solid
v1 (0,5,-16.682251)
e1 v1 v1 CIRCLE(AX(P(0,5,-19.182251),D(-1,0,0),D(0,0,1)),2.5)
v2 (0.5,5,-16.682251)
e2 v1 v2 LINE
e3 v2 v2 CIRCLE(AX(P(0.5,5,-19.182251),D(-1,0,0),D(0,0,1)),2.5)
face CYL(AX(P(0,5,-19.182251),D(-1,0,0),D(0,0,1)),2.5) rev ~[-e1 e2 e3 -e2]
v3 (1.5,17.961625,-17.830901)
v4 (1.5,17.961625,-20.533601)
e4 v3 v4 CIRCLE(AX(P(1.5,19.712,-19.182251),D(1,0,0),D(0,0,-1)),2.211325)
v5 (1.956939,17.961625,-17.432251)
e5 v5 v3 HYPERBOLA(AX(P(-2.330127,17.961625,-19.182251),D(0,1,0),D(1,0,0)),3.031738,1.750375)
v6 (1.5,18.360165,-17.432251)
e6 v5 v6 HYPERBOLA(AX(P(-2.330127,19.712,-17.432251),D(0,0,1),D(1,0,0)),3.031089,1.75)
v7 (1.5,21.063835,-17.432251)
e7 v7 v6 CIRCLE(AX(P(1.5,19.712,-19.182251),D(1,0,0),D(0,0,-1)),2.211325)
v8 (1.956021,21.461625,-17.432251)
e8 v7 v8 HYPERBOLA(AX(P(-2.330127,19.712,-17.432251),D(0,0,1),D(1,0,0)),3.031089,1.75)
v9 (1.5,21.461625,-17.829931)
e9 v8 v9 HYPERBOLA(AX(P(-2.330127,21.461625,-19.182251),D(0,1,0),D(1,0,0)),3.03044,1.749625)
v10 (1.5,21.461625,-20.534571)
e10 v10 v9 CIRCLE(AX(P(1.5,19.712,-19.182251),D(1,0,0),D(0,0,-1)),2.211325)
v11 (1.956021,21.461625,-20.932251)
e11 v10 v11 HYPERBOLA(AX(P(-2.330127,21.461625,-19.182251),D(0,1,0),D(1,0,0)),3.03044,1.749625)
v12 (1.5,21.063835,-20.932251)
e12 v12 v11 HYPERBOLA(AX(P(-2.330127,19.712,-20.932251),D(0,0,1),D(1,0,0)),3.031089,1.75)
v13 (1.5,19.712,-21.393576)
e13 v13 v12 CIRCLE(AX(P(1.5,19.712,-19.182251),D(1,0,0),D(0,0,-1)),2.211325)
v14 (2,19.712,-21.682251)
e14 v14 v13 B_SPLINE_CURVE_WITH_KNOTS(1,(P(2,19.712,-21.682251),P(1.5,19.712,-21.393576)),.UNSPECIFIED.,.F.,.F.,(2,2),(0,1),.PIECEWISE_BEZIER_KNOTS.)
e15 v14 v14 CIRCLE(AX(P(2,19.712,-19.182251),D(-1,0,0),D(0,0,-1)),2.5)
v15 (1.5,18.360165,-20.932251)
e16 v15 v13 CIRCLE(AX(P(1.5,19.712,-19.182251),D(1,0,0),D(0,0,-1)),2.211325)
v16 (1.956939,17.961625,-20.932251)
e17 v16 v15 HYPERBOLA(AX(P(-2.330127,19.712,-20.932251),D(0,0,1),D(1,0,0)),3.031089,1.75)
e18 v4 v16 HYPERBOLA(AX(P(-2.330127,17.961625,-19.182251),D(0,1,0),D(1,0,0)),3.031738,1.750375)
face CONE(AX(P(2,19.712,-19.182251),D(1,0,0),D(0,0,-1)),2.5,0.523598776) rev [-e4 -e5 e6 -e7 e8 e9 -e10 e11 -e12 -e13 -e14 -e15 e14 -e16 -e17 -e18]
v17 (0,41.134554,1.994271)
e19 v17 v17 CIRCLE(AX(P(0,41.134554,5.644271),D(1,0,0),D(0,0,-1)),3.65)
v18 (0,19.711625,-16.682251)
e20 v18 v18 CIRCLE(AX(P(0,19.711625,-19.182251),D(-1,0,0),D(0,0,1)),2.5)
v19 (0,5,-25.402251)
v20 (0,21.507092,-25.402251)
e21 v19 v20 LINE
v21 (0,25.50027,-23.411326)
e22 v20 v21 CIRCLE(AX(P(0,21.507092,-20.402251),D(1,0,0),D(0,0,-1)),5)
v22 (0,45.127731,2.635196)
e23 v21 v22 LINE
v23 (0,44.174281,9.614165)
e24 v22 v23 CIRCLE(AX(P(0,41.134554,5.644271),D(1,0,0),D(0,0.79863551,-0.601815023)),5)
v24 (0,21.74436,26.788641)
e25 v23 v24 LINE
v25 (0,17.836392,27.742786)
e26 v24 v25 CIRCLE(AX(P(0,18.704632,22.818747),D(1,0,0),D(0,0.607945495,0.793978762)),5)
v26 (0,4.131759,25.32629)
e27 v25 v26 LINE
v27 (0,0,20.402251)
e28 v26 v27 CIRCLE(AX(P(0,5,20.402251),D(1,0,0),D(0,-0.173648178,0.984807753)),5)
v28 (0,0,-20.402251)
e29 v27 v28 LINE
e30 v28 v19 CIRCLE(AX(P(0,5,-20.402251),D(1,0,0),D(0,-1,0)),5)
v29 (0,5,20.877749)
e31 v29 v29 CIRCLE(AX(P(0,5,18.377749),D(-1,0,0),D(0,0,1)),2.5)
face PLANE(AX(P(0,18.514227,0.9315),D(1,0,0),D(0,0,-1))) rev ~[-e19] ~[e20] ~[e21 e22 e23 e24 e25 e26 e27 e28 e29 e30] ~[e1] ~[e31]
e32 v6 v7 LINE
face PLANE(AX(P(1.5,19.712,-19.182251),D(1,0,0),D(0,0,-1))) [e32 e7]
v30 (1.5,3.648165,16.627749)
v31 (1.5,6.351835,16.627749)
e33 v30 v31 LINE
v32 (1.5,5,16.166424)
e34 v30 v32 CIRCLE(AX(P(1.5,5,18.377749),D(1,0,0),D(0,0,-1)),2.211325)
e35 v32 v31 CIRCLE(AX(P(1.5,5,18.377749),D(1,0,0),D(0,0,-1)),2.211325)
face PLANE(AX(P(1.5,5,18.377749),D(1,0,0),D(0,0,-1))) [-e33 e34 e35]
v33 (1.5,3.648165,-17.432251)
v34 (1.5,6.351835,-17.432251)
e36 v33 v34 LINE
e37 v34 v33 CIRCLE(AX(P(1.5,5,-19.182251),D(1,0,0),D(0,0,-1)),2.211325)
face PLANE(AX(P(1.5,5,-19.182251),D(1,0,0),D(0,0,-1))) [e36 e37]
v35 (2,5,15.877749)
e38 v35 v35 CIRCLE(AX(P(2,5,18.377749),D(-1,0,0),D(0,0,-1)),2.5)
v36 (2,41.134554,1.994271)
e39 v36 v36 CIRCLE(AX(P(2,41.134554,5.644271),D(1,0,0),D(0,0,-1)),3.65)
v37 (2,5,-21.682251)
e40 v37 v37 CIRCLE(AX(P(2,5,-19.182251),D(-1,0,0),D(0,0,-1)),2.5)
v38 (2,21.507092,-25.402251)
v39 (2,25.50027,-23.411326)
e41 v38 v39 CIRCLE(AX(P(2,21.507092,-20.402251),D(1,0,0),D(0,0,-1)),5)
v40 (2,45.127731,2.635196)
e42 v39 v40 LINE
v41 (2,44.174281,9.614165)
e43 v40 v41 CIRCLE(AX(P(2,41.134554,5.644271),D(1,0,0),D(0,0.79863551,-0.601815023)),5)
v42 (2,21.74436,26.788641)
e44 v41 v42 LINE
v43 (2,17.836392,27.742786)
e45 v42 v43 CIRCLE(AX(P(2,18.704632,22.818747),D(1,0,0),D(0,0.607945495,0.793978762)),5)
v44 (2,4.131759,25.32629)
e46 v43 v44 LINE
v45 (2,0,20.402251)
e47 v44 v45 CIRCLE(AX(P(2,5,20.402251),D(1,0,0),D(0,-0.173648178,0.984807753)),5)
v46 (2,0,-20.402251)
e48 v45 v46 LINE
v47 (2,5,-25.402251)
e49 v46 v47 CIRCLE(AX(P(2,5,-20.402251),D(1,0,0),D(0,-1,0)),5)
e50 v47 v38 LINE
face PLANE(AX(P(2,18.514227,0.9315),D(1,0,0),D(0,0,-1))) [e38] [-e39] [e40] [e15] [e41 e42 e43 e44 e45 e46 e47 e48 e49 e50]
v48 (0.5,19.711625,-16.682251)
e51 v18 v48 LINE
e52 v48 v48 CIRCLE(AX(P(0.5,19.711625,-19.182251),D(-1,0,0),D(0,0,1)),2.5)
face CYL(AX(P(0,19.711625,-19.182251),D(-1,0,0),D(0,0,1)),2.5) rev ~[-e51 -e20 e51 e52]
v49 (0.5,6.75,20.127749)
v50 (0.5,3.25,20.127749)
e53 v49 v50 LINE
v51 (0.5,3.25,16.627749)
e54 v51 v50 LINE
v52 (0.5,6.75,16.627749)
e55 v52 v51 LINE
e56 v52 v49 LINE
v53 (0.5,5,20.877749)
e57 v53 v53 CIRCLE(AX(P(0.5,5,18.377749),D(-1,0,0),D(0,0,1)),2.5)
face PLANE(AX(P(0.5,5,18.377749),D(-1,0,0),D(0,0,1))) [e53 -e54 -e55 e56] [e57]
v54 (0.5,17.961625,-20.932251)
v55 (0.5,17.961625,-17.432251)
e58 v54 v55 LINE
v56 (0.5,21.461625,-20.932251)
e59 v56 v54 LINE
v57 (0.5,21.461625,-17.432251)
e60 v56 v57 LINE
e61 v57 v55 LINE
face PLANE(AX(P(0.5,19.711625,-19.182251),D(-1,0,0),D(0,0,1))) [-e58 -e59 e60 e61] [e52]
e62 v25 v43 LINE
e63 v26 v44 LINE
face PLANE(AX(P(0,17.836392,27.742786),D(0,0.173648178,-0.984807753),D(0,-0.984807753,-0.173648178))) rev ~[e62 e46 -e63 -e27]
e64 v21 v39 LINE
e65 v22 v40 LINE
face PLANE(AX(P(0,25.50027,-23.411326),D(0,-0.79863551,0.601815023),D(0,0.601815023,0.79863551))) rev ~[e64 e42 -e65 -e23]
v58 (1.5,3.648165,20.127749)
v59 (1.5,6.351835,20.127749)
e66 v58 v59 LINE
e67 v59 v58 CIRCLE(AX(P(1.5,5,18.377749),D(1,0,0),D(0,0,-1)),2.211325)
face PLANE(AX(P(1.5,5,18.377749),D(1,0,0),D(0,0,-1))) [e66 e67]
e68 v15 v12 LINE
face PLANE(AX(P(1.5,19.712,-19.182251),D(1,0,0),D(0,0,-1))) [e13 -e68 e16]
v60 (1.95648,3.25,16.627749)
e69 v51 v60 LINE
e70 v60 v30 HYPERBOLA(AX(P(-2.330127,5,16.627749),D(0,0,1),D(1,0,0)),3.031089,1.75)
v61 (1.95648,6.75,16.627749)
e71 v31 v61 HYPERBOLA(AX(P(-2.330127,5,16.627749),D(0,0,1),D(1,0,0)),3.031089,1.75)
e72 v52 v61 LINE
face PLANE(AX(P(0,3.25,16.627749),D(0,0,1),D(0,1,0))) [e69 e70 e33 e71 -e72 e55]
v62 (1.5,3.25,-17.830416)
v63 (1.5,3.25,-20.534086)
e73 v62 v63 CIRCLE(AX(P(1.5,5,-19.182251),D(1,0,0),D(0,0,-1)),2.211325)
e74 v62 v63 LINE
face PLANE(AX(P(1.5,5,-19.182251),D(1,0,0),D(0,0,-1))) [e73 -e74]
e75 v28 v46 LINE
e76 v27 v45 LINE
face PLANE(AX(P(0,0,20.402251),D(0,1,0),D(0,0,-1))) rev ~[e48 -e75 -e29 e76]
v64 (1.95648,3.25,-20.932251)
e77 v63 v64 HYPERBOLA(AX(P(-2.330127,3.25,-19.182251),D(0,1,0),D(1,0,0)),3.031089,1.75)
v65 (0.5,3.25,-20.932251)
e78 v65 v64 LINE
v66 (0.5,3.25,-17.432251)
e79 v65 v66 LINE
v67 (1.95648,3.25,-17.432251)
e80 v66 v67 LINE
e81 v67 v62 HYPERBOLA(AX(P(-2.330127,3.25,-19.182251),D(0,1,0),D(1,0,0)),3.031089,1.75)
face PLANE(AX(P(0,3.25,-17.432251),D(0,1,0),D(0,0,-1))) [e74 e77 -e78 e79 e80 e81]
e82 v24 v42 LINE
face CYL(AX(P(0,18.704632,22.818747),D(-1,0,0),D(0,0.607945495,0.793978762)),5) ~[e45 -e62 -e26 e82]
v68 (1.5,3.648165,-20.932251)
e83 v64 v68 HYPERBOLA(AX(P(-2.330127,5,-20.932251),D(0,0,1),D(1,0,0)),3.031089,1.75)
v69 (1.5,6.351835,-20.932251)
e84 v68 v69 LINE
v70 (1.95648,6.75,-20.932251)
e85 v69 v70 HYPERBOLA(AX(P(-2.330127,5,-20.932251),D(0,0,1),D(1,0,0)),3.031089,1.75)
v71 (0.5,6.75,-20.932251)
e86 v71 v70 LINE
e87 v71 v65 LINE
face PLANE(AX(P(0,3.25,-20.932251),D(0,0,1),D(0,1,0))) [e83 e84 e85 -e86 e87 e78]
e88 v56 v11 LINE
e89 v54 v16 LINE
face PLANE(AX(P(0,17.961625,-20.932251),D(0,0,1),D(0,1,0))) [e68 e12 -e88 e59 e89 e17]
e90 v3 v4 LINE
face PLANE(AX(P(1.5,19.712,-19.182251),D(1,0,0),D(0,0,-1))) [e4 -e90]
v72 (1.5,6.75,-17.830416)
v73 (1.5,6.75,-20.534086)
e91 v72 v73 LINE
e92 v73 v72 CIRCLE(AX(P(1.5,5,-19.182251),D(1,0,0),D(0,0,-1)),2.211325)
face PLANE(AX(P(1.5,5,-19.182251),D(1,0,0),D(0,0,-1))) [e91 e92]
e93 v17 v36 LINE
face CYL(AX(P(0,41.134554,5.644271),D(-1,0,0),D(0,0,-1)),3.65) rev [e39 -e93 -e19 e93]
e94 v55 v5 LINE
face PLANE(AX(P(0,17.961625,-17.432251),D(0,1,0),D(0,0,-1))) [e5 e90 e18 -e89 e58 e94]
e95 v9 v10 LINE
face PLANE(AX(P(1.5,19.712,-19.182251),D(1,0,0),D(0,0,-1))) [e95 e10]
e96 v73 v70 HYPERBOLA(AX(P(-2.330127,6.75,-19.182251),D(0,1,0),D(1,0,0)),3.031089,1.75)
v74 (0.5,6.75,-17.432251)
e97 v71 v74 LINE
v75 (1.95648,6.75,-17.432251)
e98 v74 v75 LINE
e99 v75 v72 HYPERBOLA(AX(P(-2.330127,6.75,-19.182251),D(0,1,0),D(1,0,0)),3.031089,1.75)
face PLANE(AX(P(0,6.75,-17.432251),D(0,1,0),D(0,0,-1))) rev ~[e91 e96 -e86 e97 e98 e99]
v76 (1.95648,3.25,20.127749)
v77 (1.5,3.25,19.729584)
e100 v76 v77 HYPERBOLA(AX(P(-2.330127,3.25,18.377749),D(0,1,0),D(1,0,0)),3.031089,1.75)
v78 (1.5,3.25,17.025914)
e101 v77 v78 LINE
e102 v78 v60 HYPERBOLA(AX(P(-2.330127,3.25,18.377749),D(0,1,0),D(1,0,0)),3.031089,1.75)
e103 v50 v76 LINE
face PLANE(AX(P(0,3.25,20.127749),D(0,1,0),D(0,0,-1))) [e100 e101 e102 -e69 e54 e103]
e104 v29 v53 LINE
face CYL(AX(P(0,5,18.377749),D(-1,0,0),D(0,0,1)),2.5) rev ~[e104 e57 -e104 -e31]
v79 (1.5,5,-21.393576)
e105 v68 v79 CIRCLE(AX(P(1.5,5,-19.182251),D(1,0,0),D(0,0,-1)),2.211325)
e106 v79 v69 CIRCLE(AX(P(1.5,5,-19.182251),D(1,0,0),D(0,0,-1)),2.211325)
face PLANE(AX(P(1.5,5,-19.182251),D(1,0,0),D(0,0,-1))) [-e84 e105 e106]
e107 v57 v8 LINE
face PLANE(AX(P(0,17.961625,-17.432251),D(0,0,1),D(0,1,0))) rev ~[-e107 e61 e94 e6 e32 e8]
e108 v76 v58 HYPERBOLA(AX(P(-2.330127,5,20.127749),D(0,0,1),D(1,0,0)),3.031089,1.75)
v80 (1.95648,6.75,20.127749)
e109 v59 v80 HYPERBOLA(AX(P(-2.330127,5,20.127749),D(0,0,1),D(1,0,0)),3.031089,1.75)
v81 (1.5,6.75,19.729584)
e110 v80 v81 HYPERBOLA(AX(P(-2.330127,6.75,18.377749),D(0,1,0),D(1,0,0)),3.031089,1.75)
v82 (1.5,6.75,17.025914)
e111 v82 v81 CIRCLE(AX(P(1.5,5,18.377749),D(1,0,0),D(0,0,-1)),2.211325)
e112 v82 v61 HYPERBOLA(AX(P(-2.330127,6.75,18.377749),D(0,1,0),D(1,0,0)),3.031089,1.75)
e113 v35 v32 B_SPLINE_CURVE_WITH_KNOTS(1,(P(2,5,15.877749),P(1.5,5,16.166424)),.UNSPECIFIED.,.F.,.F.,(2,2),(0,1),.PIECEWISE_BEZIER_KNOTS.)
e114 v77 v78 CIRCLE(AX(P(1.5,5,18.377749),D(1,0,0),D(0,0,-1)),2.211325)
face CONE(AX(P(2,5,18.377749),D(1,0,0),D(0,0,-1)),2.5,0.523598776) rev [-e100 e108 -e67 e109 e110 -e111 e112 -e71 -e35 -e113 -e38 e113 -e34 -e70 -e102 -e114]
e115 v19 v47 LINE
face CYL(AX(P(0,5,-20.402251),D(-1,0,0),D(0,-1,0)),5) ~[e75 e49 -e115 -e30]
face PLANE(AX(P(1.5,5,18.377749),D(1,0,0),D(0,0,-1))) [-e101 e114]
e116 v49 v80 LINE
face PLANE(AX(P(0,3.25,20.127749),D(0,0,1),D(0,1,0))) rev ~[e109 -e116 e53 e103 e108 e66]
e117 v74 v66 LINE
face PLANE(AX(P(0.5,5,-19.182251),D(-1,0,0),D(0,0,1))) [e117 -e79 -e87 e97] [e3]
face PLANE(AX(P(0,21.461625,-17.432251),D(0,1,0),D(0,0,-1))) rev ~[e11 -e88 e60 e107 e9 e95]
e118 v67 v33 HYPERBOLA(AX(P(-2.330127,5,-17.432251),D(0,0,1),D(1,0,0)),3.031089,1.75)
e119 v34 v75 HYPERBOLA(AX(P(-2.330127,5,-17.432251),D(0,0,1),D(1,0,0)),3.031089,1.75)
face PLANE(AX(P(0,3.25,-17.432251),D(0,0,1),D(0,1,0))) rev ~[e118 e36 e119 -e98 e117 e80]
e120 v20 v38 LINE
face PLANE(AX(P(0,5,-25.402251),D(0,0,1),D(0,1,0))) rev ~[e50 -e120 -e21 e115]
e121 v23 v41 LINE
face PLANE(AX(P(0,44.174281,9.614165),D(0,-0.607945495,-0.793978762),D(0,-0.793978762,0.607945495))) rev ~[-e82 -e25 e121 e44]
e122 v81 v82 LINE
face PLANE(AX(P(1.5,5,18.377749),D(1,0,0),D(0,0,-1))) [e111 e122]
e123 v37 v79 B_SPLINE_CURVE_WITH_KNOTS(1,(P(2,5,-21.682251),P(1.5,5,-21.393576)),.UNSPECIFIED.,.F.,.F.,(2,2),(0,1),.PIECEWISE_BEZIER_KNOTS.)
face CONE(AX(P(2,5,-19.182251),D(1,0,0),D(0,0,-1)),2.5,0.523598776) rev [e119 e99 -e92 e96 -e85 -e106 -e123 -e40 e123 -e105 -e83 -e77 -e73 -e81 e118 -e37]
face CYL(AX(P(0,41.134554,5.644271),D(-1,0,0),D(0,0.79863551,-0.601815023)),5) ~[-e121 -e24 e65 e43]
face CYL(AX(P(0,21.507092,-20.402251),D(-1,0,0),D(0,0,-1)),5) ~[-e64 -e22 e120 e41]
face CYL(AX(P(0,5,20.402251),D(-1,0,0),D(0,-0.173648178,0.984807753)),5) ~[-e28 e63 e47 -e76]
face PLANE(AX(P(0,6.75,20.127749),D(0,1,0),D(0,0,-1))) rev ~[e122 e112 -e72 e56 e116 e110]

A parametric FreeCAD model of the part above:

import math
import FreeCAD as App
import Part
import Sketcher
Q = App.Units.Quantity

doc = App.newDocument("Part")
params = doc.addObject("Spreadsheet::Sheet", "Params")
for row, (alias, value) in enumerate([
    ("sketch1_radius", "5 mm"),
    ("sketch1_diameter", "7.3 mm"),
    ("sketch1_width", "3.5 mm"),
    ("pad1_length", "2 mm"),
    ("sketch2_diameter", "5 mm"),
    ("pocket1_length", "0.5 mm"),
    ("pocket1_taper", "-30 deg"),
    ("sketch3_diameter", "5 mm"),
    ("pocket2_length", "0.5 mm"),
], start=1):
    params.set(f"A{row}", alias)
    params.set(f"B{row}", "=" + value)
    params.setAlias(f"B{row}", alias)

body = doc.addObject("PartDesign::Body", "Body")

# Sketch on YZ plane
sketch1 = body.newObject("Sketcher::SketchObject", "Sketch")
sketch1.AttachmentSupport = (doc.getObject("YZ_Plane"), [""])
sketch1.MapMode = "FlatFace"
sketch1.addGeometry([
    Part.LineSegment(App.Vector(0, 20.4, 0), App.Vector(0, -20.4, 0)),  # 0
    Part.ArcOfCircle(Part.Circle(App.Vector(5, -20.4, 0), App.Vector(0, 0, 1), 5), math.radians(180), math.radians(270)),  # 1
    Part.LineSegment(App.Vector(5, -25.4, 0), App.Vector(21.5, -25.4, 0)),  # 2
    Part.ArcOfCircle(Part.Circle(App.Vector(21.5, -20.4, 0), App.Vector(0, 0, 1), 5), math.radians(-90), math.radians(-37)),  # 3
    Part.LineSegment(App.Vector(25.5, -23.4, 0), App.Vector(45.1, 2.6, 0)),  # 4
    Part.ArcOfCircle(Part.Circle(App.Vector(41.1, 5.6, 0), App.Vector(0, 0, 1), 5), math.radians(-37), math.radians(53)),  # 5
    Part.LineSegment(App.Vector(44.2, 9.6, 0), App.Vector(21.7, 26.8, 0)),  # 6
    Part.ArcOfCircle(Part.Circle(App.Vector(18.7, 22.8, 0), App.Vector(0, 0, 1), 5), math.radians(53), math.radians(100)),  # 7
    Part.LineSegment(App.Vector(17.8, 27.7, 0), App.Vector(4.1, 25.3, 0)),  # 8
    Part.ArcOfCircle(Part.Circle(App.Vector(5, 20.4, 0), App.Vector(0, 0, 1), 5), math.radians(100), math.radians(180)),  # 9
    Part.LineSegment(App.Vector(3.2, 16.6, 0), App.Vector(3.2, 20.1, 0)),  # 10
    Part.LineSegment(App.Vector(3.2, 20.1, 0), App.Vector(6.8, 20.1, 0)),  # 11
    Part.LineSegment(App.Vector(6.8, 20.1, 0), App.Vector(6.8, 16.6, 0)),  # 12
    Part.LineSegment(App.Vector(6.8, 16.6, 0), App.Vector(3.2, 16.6, 0)),  # 13
    Part.LineSegment(App.Vector(3.2, -20.9, 0), App.Vector(3.2, -17.4, 0)),  # 14
    Part.LineSegment(App.Vector(3.2, -17.4, 0), App.Vector(6.8, -17.4, 0)),  # 15
    Part.LineSegment(App.Vector(6.8, -17.4, 0), App.Vector(6.8, -20.9, 0)),  # 16
    Part.LineSegment(App.Vector(6.8, -20.9, 0), App.Vector(3.2, -20.9, 0)),  # 17
    Part.LineSegment(App.Vector(18, -20.9, 0), App.Vector(18, -17.4, 0)),  # 18
    Part.LineSegment(App.Vector(18, -17.4, 0), App.Vector(21.5, -17.4, 0)),  # 19
    Part.LineSegment(App.Vector(21.5, -17.4, 0), App.Vector(21.5, -20.9, 0)),  # 20
    Part.LineSegment(App.Vector(21.5, -20.9, 0), App.Vector(18, -20.9, 0)),  # 21
    Part.Circle(App.Vector(41.1, 5.6, 0), App.Vector(0, 0, 1), 3.6),  # 22
], False)
sketch1.addConstraint([
    Sketcher.Constraint("Tangent", 0, 2, 1, 1),
    Sketcher.Constraint("Tangent", 1, 2, 2, 1),
    Sketcher.Constraint("Tangent", 2, 2, 3, 1),
    Sketcher.Constraint("Tangent", 3, 2, 4, 1),
    Sketcher.Constraint("Tangent", 4, 2, 5, 1),
    Sketcher.Constraint("Tangent", 5, 2, 6, 1),
    Sketcher.Constraint("Tangent", 6, 2, 7, 1),
    Sketcher.Constraint("Tangent", 7, 2, 8, 1),
    Sketcher.Constraint("Tangent", 8, 2, 9, 1),
    Sketcher.Constraint("Tangent", 9, 2, 0, 1),
    Sketcher.Constraint("Coincident", 10, 2, 11, 1),
    Sketcher.Constraint("Coincident", 11, 2, 12, 1),
    Sketcher.Constraint("Coincident", 12, 2, 13, 1),
    Sketcher.Constraint("Coincident", 13, 2, 10, 1),
    Sketcher.Constraint("Coincident", 14, 2, 15, 1),
    Sketcher.Constraint("Coincident", 15, 2, 16, 1),
    Sketcher.Constraint("Coincident", 16, 2, 17, 1),
    Sketcher.Constraint("Coincident", 17, 2, 14, 1),
    Sketcher.Constraint("Coincident", 18, 2, 19, 1),
    Sketcher.Constraint("Coincident", 19, 2, 20, 1),
    Sketcher.Constraint("Coincident", 20, 2, 21, 1),
    Sketcher.Constraint("Coincident", 21, 2, 18, 1),
    Sketcher.Constraint("Vertical", 0),
    Sketcher.Constraint("Horizontal", 2),
    Sketcher.Constraint("Vertical", 10),
    Sketcher.Constraint("Horizontal", 11),
    Sketcher.Constraint("Vertical", 12),
    Sketcher.Constraint("Horizontal", 13),
    Sketcher.Constraint("Vertical", 14),
    Sketcher.Constraint("Horizontal", 15),
    Sketcher.Constraint("Vertical", 16),
    Sketcher.Constraint("Horizontal", 17),
    Sketcher.Constraint("Vertical", 18),
    Sketcher.Constraint("Horizontal", 19),
    Sketcher.Constraint("Vertical", 20),
    Sketcher.Constraint("Horizontal", 21),
    Sketcher.Constraint("Coincident", 22, 3, 5, 3),
    Sketcher.Constraint("Equal", 1, 3),
    Sketcher.Constraint("Equal", 3, 5),
    Sketcher.Constraint("Equal", 5, 7),
    Sketcher.Constraint("Equal", 7, 9),
    Sketcher.Constraint("Symmetric", 0, 2, 9, 2, -1, 1),
    Sketcher.Constraint("Horizontal", 15, 2, 18, 2),
    Sketcher.Constraint("Horizontal", 17, 2, 20, 2),
    Sketcher.Constraint("Vertical", 13, 2, 14, 2),
    Sketcher.Constraint("Vertical", 12, 2, 15, 2),
    Sketcher.Constraint("Equal", 17, 19),
    Sketcher.Constraint("Equal", 21, 10),
    Sketcher.Constraint("Equal", 12, 14),
    Sketcher.Constraint("Radius", 1, Q("5 mm")),
    Sketcher.Constraint("Diameter", 22, Q("7.3 mm")),
    Sketcher.Constraint("Angle", 4, Q("53 deg")),
    Sketcher.Constraint("Angle", 8, Q("-170 deg")),
    Sketcher.Constraint("DistanceX", 11, 1, 11, 2, Q("3.5 mm")),
    Sketcher.Constraint("DistanceX", -1, 1, 10, 2, Q("3.25 mm")),
    Sketcher.Constraint("DistanceY", 1, 3, 14, 2, Q("2.97 mm")),
    Sketcher.Constraint("DistanceY", 0, 2, 0, 1, Q("40.804502 mm")),
    Sketcher.Constraint("DistanceY", 3, 3, 7, 3, Q("43.220998 mm")),
    Sketcher.Constraint("DistanceY", 10, 2, 7, 3, Q("2.690998 mm")),
    Sketcher.Constraint("DistanceX", 2, 1, 2, 2, Q("16.507092 mm")),
    Sketcher.Constraint("DistanceX", 7, 3, 4, 2, Q("26.423099 mm")),
    Sketcher.Constraint("DistanceX", -1, 1, 18, 2, Q("17.961625 mm")),
])
sketch1.setExpression("Constraints[49]", "Params.sketch1_radius")
sketch1.setExpression("Constraints[50]", "Params.sketch1_diameter")
sketch1.setExpression("Constraints[53]", "Params.sketch1_width")
pad1 = body.newObject("PartDesign::Pad", "Pad")
pad1.Profile = sketch1
pad1.setExpression("Length", "Params.pad1_length")

# Sketch on YZ plane
sketch2 = body.newObject("Sketcher::SketchObject", "Sketch001")
sketch2.AttachmentSupport = (doc.getObject("YZ_Plane"), [""])
sketch2.MapMode = "FlatFace"
sketch2.AttachmentOffset = App.Placement(App.Vector(0, 0, 2), App.Rotation())
sketch2.addGeometry([
    Part.Circle(App.Vector(5, 18.4, 0), App.Vector(0, 0, 1), 2.5),
    Part.Circle(App.Vector(5, -19.2, 0), App.Vector(0, 0, 1), 2.5),
    Part.Circle(App.Vector(19.7, -19.2, 0), App.Vector(0, 0, 1), 2.5),
], False)
sketch2.addConstraint([
    Sketcher.Constraint("Equal", 0, 1),
    Sketcher.Constraint("Equal", 1, 2),
    Sketcher.Constraint("Horizontal", 1, 3, 2, 3),
    Sketcher.Constraint("Vertical", 0, 3, 1, 3),
    Sketcher.Constraint("Diameter", 0, Q("5 mm")),
    Sketcher.Constraint("DistanceX", -1, 1, 0, 3, Q("5 mm")),
    Sketcher.Constraint("DistanceY", 1, 3, 0, 3, Q("37.56 mm")),
    Sketcher.Constraint("DistanceX", -1, 1, 2, 3, Q("19.712 mm")),
    Sketcher.Constraint("DistanceY", -1, 1, 0, 3, Q("18.377749 mm")),
])
sketch2.setExpression("Constraints[4]", "Params.sketch2_diameter")
pocket1 = body.newObject("PartDesign::Pocket", "Pocket")
pocket1.Profile = sketch2
pocket1.setExpression("Length", "Params.pocket1_length")
pocket1.setExpression("TaperAngle", "Params.pocket1_taper")

# Sketch on YZ plane
sketch3 = body.newObject("Sketcher::SketchObject", "Sketch002")
sketch3.AttachmentSupport = (doc.getObject("YZ_Plane"), [""])
sketch3.MapMode = "FlatFace"
sketch3.addGeometry([
    Part.Circle(App.Vector(5, -19.2, 0), App.Vector(0, 0, 1), 2.5),
    Part.Circle(App.Vector(19.7, -19.2, 0), App.Vector(0, 0, 1), 2.5),
    Part.Circle(App.Vector(5, 18.4, 0), App.Vector(0, 0, 1), 2.5),
], False)
sketch3.addConstraint([
    Sketcher.Constraint("Equal", 0, 1),
    Sketcher.Constraint("Equal", 1, 2),
    Sketcher.Constraint("Horizontal", 0, 3, 1, 3),
    Sketcher.Constraint("Vertical", 0, 3, 2, 3),
    Sketcher.Constraint("Diameter", 0, Q("5 mm")),
    Sketcher.Constraint("DistanceX", -1, 1, 0, 3, Q("5 mm")),
    Sketcher.Constraint("DistanceY", 0, 3, 2, 3, Q("37.56 mm")),
    Sketcher.Constraint("DistanceY", 0, 3, -1, 1, Q("19.182251 mm")),
    Sketcher.Constraint("DistanceX", -1, 1, 1, 3, Q("19.711625 mm")),
])
sketch3.setExpression("Constraints[4]", "Params.sketch3_diameter")
pocket2 = body.newObject("PartDesign::Pocket", "Pocket001")
pocket2.Profile = sketch3
pocket2.setExpression("Length", "Params.pocket2_length")
pocket2.Reversed = True

doc.recompute()
